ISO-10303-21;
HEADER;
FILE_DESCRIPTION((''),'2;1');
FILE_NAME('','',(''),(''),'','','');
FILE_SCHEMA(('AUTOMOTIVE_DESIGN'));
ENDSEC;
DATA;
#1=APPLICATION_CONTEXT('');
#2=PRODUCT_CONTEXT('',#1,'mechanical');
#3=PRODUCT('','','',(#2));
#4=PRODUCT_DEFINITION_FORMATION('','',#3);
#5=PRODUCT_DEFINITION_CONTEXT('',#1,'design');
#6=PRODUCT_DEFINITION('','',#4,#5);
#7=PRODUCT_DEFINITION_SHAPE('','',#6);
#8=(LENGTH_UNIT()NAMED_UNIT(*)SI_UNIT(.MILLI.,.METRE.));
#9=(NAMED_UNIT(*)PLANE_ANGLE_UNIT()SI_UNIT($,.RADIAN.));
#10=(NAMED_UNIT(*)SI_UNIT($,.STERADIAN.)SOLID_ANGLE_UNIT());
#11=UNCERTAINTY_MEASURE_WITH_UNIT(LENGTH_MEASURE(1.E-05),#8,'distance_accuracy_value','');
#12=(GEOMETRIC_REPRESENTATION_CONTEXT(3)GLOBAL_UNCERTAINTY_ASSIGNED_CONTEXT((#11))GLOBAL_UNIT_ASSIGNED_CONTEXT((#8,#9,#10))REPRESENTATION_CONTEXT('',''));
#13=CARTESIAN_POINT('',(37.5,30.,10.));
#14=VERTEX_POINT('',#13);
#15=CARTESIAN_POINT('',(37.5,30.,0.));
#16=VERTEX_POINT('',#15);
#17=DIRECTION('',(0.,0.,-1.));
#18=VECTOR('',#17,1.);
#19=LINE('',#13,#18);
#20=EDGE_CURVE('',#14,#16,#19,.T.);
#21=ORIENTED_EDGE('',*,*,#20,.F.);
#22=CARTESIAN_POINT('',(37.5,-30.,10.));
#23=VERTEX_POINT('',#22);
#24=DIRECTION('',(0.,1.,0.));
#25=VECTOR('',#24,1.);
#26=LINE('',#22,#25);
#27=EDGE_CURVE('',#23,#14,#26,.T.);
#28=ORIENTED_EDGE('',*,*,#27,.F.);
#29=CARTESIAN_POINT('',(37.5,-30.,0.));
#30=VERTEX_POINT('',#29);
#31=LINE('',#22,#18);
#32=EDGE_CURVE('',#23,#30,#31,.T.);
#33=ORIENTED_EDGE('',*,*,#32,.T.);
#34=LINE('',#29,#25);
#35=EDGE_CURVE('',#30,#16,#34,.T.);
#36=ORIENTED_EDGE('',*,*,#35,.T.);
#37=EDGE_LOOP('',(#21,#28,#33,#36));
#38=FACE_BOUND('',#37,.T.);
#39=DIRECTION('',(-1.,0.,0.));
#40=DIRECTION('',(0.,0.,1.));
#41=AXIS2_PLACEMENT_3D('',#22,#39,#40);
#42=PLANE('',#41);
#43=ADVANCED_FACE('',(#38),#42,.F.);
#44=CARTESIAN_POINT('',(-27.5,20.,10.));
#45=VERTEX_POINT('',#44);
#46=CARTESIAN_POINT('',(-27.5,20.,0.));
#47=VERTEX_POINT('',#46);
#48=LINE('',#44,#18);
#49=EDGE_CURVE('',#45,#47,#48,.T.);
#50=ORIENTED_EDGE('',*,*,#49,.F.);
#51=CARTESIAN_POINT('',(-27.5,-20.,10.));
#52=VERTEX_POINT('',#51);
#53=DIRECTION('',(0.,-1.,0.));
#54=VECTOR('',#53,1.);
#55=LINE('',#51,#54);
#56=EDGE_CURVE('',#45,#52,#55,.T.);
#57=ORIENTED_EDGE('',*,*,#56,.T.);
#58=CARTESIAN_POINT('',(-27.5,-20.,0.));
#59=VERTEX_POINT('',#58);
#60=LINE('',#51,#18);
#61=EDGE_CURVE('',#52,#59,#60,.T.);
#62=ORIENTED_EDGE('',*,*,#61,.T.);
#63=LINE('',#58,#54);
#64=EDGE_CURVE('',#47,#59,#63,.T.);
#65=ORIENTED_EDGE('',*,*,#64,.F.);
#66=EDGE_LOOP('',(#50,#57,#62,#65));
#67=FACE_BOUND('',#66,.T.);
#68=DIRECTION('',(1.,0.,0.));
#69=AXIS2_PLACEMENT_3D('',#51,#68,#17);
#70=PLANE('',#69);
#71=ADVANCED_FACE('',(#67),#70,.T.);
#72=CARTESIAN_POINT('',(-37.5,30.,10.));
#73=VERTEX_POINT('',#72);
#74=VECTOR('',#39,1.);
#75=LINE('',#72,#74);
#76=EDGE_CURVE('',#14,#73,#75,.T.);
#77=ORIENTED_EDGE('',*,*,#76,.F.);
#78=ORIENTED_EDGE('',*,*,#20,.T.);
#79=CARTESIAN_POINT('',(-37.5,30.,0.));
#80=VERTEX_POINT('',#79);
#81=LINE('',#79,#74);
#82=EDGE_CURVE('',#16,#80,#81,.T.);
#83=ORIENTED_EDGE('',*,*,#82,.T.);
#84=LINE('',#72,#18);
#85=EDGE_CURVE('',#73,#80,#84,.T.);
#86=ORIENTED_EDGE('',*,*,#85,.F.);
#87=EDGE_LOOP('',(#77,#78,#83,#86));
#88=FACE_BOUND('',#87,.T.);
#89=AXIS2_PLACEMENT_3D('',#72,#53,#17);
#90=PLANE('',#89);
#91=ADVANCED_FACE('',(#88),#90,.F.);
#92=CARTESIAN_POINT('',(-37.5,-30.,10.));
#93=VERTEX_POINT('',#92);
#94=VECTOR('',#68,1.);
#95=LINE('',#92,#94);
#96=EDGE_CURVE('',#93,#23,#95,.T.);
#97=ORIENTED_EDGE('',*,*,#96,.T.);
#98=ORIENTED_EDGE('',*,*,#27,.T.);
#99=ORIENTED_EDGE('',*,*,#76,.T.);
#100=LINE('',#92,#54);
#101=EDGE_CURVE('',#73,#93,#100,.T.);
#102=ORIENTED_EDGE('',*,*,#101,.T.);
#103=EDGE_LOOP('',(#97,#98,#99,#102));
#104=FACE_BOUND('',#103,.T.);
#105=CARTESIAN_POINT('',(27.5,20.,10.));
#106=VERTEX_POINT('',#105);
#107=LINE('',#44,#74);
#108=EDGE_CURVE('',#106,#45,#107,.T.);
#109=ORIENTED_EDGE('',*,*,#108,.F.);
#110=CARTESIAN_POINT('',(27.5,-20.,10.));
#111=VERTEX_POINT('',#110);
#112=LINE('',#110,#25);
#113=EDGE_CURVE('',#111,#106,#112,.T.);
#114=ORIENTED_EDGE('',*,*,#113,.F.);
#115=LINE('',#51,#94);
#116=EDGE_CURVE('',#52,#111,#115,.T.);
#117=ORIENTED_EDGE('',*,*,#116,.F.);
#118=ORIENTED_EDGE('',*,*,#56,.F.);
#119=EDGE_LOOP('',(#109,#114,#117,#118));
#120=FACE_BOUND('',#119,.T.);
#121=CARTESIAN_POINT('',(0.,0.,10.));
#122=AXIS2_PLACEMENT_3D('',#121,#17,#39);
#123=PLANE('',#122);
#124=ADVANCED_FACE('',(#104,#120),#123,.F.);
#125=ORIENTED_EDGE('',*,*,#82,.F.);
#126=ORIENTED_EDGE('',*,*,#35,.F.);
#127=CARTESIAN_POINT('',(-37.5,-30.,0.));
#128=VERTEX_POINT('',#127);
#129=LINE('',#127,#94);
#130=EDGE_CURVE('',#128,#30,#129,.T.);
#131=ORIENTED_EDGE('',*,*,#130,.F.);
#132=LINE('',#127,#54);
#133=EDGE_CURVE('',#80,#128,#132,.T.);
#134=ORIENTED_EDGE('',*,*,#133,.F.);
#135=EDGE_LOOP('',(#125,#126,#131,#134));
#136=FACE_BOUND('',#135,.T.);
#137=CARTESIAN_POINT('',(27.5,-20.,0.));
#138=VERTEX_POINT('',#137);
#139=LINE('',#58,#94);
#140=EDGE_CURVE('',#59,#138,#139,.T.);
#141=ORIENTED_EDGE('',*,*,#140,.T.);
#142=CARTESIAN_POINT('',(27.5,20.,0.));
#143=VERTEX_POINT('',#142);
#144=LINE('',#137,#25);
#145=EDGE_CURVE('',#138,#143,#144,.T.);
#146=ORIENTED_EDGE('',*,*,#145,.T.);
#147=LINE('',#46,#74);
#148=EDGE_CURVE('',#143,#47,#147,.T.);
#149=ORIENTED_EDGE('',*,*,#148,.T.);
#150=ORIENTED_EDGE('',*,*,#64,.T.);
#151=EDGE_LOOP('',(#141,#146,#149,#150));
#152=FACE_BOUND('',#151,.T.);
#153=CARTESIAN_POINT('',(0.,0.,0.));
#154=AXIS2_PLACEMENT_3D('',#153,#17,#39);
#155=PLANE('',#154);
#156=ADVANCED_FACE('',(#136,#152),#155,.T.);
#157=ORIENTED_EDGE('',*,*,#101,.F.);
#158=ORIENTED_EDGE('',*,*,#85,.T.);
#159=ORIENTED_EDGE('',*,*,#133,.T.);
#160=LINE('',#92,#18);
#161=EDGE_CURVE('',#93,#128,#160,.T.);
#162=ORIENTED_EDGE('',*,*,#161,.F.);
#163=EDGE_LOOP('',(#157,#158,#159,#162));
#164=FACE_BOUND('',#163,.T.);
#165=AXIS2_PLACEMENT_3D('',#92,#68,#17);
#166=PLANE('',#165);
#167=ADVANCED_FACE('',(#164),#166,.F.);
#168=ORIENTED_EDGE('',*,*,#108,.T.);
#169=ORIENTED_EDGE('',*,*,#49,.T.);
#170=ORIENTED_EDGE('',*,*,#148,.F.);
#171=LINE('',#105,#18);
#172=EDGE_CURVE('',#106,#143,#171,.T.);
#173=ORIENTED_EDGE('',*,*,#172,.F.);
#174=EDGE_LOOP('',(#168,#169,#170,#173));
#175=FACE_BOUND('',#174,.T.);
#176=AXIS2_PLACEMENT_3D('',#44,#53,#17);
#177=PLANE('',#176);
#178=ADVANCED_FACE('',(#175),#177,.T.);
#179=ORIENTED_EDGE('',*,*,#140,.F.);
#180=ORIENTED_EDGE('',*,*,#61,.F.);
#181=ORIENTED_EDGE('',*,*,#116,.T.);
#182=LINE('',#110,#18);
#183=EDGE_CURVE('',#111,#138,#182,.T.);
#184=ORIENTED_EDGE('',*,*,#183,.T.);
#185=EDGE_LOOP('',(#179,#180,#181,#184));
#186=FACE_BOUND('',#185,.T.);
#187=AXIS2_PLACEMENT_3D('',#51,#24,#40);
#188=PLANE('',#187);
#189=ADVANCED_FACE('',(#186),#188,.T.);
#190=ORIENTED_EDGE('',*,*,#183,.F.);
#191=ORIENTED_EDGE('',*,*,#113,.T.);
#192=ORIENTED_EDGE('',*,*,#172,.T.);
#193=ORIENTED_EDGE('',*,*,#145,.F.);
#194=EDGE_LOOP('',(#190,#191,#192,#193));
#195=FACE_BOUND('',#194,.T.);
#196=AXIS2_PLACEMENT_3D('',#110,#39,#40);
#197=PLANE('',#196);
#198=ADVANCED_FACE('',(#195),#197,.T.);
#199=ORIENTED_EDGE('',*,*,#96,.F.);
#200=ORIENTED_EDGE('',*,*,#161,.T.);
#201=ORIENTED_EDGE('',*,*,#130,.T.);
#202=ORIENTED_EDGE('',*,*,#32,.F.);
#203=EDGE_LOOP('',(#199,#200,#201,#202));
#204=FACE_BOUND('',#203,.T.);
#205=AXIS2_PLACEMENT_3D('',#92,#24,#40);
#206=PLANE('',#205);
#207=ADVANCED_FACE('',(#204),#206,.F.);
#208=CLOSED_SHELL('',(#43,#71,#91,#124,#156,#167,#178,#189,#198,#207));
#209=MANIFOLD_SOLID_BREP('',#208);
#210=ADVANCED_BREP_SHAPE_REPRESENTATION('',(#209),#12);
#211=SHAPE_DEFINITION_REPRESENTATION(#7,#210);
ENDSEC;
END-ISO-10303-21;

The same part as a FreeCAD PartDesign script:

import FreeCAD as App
import Part
import Sketcher

V = App.Vector
Q = App.Units.Quantity


def add_polygon(sketch, points):
    """Adds a closed chain of lines whose ends are joined by coincident constraints."""
    first, n = sketch.GeometryCount, len(points)
    for a, b in zip(points, points[1:] + points[:1]):
        sketch.addGeometry(Part.LineSegment(App.Vector(*a, 0), App.Vector(*b, 0)), False)
    for i in range(n):
        sketch.addConstraint(Sketcher.Constraint("Coincident", first + i, 2, first + (i + 1) % n, 1))

doc = App.newDocument("Part")
params = doc.addObject("Spreadsheet::Sheet", "Params")
for row, (alias, value) in enumerate([
    ("sketch1_width", "75 mm"),
    ("sketch1_width2", "55 mm"),
    ("sketch1_height", "60 mm"),
    ("sketch1_height2", "40 mm"),
    ("pad1_length", "10 mm"),
], start=1):
    params.set(f"A{row}", alias)
    params.set(f"B{row}", "=" + value)
    params.setAlias(f"B{row}", alias)

body = doc.addObject("PartDesign::Body", "Body")

# Sketch on XY plane
sketch1 = doc.addObject("Sketcher::SketchObject", "Sketch")
body.addObject(sketch1)
sketch1.AttachmentSupport = (doc.XY_Plane, [""])
sketch1.MapMode = "FlatFace"
add_polygon(sketch1, [(-38, 30), (-38, -30), (38, -30), (38, 30)])  # lines 0-3
add_polygon(sketch1, [(28, -20), (-28, -20), (-28, 20), (28, 20)])  # lines 4-7
sketch1.addConstraint([
    Sketcher.Constraint("Vertical", 0),
    Sketcher.Constraint("Horizontal", 1),
    Sketcher.Constraint("Vertical", 2),
    Sketcher.Constraint("Horizontal", 3),
    Sketcher.Constraint("Horizontal", 4),
    Sketcher.Constraint("Vertical", 5),
    Sketcher.Constraint("Horizontal", 6),
    Sketcher.Constraint("Vertical", 7),
    Sketcher.Constraint("Symmetric", 0, 2, 2, 2, -1, 1),
    Sketcher.Constraint("Symmetric", 4, 2, 6, 2, -1, 1),
    Sketcher.Constraint("DistanceX", 1, 1, 1, 2, Q("75 mm")),
    Sketcher.Constraint("DistanceX", 4, 2, 4, 1, Q("55 mm")),
    Sketcher.Constraint("DistanceY", 0, 2, 0, 1, Q("60 mm")),
    Sketcher.Constraint("DistanceY", 5, 1, 5, 2, Q("40 mm")),
])
sketch1.setExpression("Constraints[18]", "Params.sketch1_width")
sketch1.setExpression("Constraints[19]", "Params.sketch1_width2")
sketch1.setExpression("Constraints[20]", "Params.sketch1_height")
sketch1.setExpression("Constraints[21]", "Params.sketch1_height2")
pad1 = doc.addObject("PartDesign::Pad", "Pad")
body.addObject(pad1)
pad1.Profile = sketch1
pad1.setExpression("Length", "Params.pad1_length")

doc.recompute()
